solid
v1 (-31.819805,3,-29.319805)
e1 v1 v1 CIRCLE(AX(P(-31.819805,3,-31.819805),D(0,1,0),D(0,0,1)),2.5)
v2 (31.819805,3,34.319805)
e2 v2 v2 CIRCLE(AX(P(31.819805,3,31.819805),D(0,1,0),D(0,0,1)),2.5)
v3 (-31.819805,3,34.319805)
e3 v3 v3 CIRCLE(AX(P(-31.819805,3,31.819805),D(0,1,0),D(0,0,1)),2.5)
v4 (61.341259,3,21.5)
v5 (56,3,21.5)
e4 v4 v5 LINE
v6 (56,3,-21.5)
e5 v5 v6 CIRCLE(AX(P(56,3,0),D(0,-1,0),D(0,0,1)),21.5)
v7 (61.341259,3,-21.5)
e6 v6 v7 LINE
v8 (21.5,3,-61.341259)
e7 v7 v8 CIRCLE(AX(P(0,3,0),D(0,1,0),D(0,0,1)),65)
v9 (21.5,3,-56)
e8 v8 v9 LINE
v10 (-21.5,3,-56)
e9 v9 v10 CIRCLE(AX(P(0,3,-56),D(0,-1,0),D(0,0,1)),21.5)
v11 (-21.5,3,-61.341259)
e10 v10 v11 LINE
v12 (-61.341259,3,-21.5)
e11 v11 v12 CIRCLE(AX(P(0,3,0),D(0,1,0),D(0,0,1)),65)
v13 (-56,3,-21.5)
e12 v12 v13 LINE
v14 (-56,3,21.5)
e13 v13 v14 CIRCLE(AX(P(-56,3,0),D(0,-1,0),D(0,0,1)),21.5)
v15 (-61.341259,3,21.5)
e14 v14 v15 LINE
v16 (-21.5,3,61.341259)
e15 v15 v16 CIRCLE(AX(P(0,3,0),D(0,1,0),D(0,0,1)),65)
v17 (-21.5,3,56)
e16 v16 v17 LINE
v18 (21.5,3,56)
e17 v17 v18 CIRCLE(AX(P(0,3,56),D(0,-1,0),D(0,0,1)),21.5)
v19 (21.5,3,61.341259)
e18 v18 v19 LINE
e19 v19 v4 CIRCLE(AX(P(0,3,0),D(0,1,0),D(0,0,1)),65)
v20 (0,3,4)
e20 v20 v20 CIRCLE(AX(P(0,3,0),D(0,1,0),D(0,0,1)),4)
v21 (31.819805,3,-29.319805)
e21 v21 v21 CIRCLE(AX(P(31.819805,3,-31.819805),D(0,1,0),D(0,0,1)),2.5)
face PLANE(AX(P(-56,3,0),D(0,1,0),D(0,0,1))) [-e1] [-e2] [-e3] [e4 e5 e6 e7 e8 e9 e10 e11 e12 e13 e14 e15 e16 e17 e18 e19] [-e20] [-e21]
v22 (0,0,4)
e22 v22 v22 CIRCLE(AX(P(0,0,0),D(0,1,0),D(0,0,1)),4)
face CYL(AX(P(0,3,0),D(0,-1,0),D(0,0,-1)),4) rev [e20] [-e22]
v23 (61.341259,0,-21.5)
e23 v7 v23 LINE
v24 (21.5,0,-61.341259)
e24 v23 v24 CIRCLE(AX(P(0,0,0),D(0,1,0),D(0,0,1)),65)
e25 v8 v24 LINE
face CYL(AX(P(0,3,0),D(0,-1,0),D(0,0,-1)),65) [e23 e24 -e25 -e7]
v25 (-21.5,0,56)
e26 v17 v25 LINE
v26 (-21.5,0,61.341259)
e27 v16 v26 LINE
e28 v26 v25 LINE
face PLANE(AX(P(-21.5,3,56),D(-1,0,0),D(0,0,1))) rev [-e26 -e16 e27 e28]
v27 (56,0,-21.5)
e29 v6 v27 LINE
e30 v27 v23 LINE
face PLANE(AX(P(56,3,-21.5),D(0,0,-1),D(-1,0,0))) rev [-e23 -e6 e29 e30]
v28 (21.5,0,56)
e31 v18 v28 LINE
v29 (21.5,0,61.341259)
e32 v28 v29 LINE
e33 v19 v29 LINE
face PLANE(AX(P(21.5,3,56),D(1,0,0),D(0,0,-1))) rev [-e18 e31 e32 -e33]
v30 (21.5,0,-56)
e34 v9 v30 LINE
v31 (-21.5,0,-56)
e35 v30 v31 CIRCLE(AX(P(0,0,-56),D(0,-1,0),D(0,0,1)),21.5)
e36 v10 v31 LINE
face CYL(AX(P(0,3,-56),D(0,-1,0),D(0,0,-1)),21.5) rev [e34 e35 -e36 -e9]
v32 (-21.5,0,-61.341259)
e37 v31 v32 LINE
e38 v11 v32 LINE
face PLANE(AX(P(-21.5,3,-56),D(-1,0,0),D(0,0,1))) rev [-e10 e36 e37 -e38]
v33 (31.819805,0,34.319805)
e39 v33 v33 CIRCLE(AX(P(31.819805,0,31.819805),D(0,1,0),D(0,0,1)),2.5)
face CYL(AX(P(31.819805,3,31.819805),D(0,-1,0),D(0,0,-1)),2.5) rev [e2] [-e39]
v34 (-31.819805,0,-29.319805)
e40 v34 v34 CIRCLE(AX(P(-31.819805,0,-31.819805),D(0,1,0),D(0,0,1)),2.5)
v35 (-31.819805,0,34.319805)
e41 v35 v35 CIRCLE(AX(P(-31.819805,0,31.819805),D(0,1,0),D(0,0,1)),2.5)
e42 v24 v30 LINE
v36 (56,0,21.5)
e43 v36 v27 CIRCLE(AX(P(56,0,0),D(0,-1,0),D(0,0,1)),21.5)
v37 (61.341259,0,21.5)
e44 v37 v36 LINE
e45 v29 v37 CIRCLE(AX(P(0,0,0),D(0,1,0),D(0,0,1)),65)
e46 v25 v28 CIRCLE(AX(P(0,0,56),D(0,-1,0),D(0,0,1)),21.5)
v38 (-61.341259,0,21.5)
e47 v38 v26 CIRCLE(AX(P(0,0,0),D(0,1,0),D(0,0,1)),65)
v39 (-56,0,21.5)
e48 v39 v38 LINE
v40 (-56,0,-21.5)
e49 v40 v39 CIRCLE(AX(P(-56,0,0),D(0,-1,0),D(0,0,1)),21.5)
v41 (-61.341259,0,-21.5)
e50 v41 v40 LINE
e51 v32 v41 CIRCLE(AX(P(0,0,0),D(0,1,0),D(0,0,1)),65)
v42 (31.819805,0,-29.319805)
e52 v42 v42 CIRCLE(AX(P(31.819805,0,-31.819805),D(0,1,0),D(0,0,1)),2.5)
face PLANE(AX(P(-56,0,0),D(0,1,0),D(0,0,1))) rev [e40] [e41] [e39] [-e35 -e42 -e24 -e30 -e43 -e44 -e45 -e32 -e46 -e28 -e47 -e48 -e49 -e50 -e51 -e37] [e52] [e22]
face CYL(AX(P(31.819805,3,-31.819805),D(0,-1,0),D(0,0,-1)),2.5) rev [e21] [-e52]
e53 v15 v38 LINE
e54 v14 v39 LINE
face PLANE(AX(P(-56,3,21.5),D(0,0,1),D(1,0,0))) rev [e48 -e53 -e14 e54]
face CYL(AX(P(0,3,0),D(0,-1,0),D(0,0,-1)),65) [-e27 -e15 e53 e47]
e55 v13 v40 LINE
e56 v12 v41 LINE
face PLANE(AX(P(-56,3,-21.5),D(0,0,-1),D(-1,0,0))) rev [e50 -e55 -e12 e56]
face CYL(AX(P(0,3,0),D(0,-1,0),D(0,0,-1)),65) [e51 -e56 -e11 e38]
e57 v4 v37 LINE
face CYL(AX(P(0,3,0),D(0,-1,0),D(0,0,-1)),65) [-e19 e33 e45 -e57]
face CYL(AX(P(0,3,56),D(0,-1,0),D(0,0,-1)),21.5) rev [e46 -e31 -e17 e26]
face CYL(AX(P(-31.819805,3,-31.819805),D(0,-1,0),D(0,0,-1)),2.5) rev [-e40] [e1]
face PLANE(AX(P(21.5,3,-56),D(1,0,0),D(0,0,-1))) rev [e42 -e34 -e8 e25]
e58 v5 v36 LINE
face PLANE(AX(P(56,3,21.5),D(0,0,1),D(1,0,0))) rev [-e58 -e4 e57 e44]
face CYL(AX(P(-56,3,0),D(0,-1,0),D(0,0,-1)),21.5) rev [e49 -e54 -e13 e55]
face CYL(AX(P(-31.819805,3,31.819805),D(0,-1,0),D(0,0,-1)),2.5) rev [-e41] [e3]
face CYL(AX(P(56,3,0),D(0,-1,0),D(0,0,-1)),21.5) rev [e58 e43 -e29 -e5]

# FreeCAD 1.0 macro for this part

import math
import FreeCAD as App
import Part
import Sketcher

V = App.Vector

doc = App.newDocument("Part")
body = doc.addObject("PartDesign::Body", "Body")

# Sketch on XZ plane
sketch1 = body.newObject("Sketcher::SketchObject", "Sketch")
sketch1.AttachmentSupport = (doc.getObject("XZ_Plane"), [""])
sketch1.MapMode = "FlatFace"
sketch1.addGeometry([
    Part.LineSegment(V(-61.3, -21.5, 0), V(-56, -21.5, 0)),  # 0
    Part.ArcOfCircle(Part.Circle(V(-56, 0, 0), V(0, 0, 1), 21.5), math.radians(-90), math.radians(90)),  # 1
    Part.LineSegment(V(-56, 21.5, 0), V(-61.3, 21.5, 0)),  # 2
    Part.ArcOfCircle(Part.Circle(V(0, 0, 0), V(0, 0, 1), 65), math.radians(109), math.radians(161)),  # 3
    Part.LineSegment(V(-21.5, 61.3, 0), V(-21.5, 56, 0)),  # 4
    Part.ArcOfCircle(Part.Circle(V(0, 56, 0), V(0, 0, 1), 21.5), math.radians(180), math.radians(360)),  # 5
    Part.LineSegment(V(21.5, 56, 0), V(21.5, 61.3, 0)),  # 6
    Part.ArcOfCircle(Part.Circle(V(0, 0, 0), V(0, 0, 1), 65), math.radians(19), math.radians(71)),  # 7
    Part.LineSegment(V(61.3, 21.5, 0), V(56, 21.5, 0)),  # 8
    Part.ArcOfCircle(Part.Circle(V(56, 0, 0), V(0, 0, 1), 21.5), math.radians(90), math.radians(270)),  # 9
    Part.LineSegment(V(56, -21.5, 0), V(61.3, -21.5, 0)),  # 10
    Part.ArcOfCircle(Part.Circle(V(0, 0, 0), V(0, 0, 1), 65), math.radians(-71), math.radians(-19)),  # 11
    Part.LineSegment(V(21.5, -61.3, 0), V(21.5, -56, 0)),  # 12
    Part.ArcOfCircle(Part.Circle(V(0, -56, 0), V(0, 0, 1), 21.5), math.radians(0), math.radians(180)),  # 13
    Part.LineSegment(V(-21.5, -56, 0), V(-21.5, -61.3, 0)),  # 14
    Part.ArcOfCircle(Part.Circle(V(0, 0, 0), V(0, 0, 1), 65), math.radians(-161), math.radians(-109)),  # 15
    Part.Circle(V(31.8, 31.8, 0), V(0, 0, 1), 2.5),  # 16
    Part.Circle(V(-31.8, 31.8, 0), V(0, 0, 1), 2.5),  # 17
    Part.Circle(V(31.8, -31.8, 0), V(0, 0, 1), 2.5),  # 18
    Part.Circle(V(0, 0, 0), V(0, 0, 1), 4),  # 19
    Part.Circle(V(-31.8, -31.8, 0), V(0, 0, 1), 2.5),  # 20
], False)
sketch1.addConstraint([
    Sketcher.Constraint("Tangent", 0, 2, 1, 1),
    Sketcher.Constraint("Tangent", 1, 2, 2, 1),
    Sketcher.Constraint("Coincident", 2, 2, 3, 2),
    Sketcher.Constraint("Coincident", 3, 1, 4, 1),
    Sketcher.Constraint("Tangent", 4, 2, 5, 1),
    Sketcher.Constraint("Tangent", 5, 2, 6, 1),
    Sketcher.Constraint("Coincident", 6, 2, 7, 2),
    Sketcher.Constraint("Coincident", 7, 1, 8, 1),
    Sketcher.Constraint("Tangent", 8, 2, 9, 1),
    Sketcher.Constraint("Tangent", 9, 2, 10, 1),
    Sketcher.Constraint("Coincident", 10, 2, 11, 2),
    Sketcher.Constraint("Coincident", 11, 1, 12, 1),
    Sketcher.Constraint("Tangent", 12, 2, 13, 1),
    Sketcher.Constraint("Tangent", 13, 2, 14, 1),
    Sketcher.Constraint("Coincident", 14, 2, 15, 2),
    Sketcher.Constraint("Coincident", 15, 1, 0, 1),
    Sketcher.Constraint("Horizontal", 0),
    Sketcher.Constraint("Horizontal", 2),
    Sketcher.Constraint("Vertical", 4),
    Sketcher.Constraint("Vertical", 6),
    Sketcher.Constraint("Horizontal", 8),
    Sketcher.Constraint("Horizontal", 10),
    Sketcher.Constraint("Vertical", 12),
    Sketcher.Constraint("Vertical", 14),
    Sketcher.Constraint("Coincident", 3, 3, -1, 1),
    Sketcher.Constraint("Coincident", 7, 3, -1, 1),
    Sketcher.Constraint("Coincident", 11, 3, -1, 1),
    Sketcher.Constraint("Coincident", 15, 3, -1, 1),
    Sketcher.Constraint("Coincident", 19, 3, -1, 1),
    Sketcher.Constraint("Equal", 1, 5),
    Sketcher.Constraint("Equal", 3, 7),
    Sketcher.Constraint("Equal", 5, 9),
    Sketcher.Constraint("Equal", 7, 11),
    Sketcher.Constraint("Equal", 9, 13),
    Sketcher.Constraint("Equal", 11, 15),
    Sketcher.Constraint("Equal", 16, 17),
    Sketcher.Constraint("Equal", 17, 18),
    Sketcher.Constraint("Equal", 18, 20),
    Sketcher.Constraint("Symmetric", 1, 3, 9, 3, -1, 1),
    Sketcher.Constraint("Symmetric", 5, 3, 13, 3, -1, 1),
    Sketcher.Constraint("Symmetric", 17, 3, 18, 3, -1, 1),
    Sketcher.Constraint("Symmetric", 16, 3, 20, 3, -1, 1),
    Sketcher.Constraint("Symmetric", 16, 3, 17, 3, -2),
    Sketcher.Constraint("PointOnObject", 1, 3, -1),
    Sketcher.Constraint("PointOnObject", 5, 3, -2),
    Sketcher.Constraint("Equal", 10, 4),
    Sketcher.Constraint("Diameter", 16, 5.0),
    Sketcher.Constraint("Diameter", 19, 8.0),
    Sketcher.Constraint("Radius", 3, 65.0),
    Sketcher.Constraint("Radius", 1, 21.5),
    Sketcher.Constraint("DistanceX", 1, 3, -1, 1, 56.0),
    Sketcher.Constraint("DistanceX", -1, 1, 16, 3, 31.819805),
    Sketcher.Constraint("DistanceY", -1, 1, 16, 3, 31.819805),
])
pad1 = body.newObject("PartDesign::Pad", "Pad")
pad1.Profile = sketch1
pad1.Length = 3
pad1.Reversed = True

doc.recompute()
